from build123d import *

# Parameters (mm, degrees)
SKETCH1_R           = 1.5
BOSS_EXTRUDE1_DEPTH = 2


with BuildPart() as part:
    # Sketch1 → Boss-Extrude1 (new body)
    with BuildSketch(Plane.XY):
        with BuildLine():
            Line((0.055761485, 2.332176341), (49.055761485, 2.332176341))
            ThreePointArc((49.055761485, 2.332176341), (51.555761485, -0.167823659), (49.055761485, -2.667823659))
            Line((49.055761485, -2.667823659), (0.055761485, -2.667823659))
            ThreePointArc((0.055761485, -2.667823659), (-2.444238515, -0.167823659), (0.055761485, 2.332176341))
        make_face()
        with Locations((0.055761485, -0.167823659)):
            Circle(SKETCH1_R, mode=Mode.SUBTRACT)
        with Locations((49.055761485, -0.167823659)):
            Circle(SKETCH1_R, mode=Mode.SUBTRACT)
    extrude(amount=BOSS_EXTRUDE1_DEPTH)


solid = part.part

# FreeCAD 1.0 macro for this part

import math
import FreeCAD as App
import Part
import Sketcher

doc = App.newDocument("Part")
body = doc.addObject("PartDesign::Body", "Body")

sketch1 = doc.addObject("Sketcher::SketchObject", "Sketch")
body.addObject(sketch1)
sketch1.AttachmentSupport = (doc.XY_Plane, [""])
sketch1.MapMode = "FlatFace"
sketch1.addGeometry(Part.LineSegment(App.Vector(49.1, 2.3, 0), App.Vector(0.1, 2.3, 0)), False)
sketch1.addGeometry(Part.ArcOfCircle(Part.Circle(App.Vector(0.1, -0.2, 0), App.Vector(0, 0, 1), 2.5), math.radians(90), math.radians(270)), False)
sketch1.addGeometry(Part.LineSegment(App.Vector(0.1, -2.7, 0), App.Vector(49.1, -2.7, 0)), False)
sketch1.addGeometry(Part.ArcOfCircle(Part.Circle(App.Vector(49.1, -0.2, 0), App.Vector(0, 0, 1), 2.5), math.radians(-90), math.radians(90)), False)
sketch1.addGeometry(Part.Circle(App.Vector(49.1, -0.2, 0), App.Vector(0, 0, 1), 1.5), False)
sketch1.addGeometry(Part.Circle(App.Vector(0.1, -0.2, 0), App.Vector(0, 0, 1), 1.5), False)
sketch1.addConstraint(Sketcher.Constraint("Tangent", 0, 2, 1, 1))
sketch1.addConstraint(Sketcher.Constraint("Tangent", 1, 2, 2, 1))
sketch1.addConstraint(Sketcher.Constraint("Tangent", 2, 2, 3, 1))
sketch1.addConstraint(Sketcher.Constraint("Tangent", 3, 2, 0, 1))
sketch1.addConstraint(Sketcher.Constraint("Horizontal", 0))
sketch1.addConstraint(Sketcher.Constraint("Horizontal", 2))
sketch1.addConstraint(Sketcher.Constraint("Coincident", 4, 3, 3, 3))
sketch1.addConstraint(Sketcher.Constraint("Coincident", 5, 3, 1, 3))
sketch1.addConstraint(Sketcher.Constraint("Equal", 4, 5))
sketch1.addConstraint(Sketcher.Constraint("Diameter", 4, 3.0))
sketch1.addConstraint(Sketcher.Constraint("Radius", 1, 2.5))
sketch1.addConstraint(Sketcher.Constraint("DistanceX", 0, 2, 0, 1, 49.0))
sketch1.addConstraint(Sketcher.Constraint("DistanceX", -1, 1, 1, 3, 0.055761))
sketch1.addConstraint(Sketcher.Constraint("DistanceY", 1, 3, -1, 1, 0.167824))
pad1 = doc.addObject("PartDesign::Pad", "Pad")
body.addObject(pad1)
pad1.Profile = sketch1
pad1.Length = 2

doc.recompute()
